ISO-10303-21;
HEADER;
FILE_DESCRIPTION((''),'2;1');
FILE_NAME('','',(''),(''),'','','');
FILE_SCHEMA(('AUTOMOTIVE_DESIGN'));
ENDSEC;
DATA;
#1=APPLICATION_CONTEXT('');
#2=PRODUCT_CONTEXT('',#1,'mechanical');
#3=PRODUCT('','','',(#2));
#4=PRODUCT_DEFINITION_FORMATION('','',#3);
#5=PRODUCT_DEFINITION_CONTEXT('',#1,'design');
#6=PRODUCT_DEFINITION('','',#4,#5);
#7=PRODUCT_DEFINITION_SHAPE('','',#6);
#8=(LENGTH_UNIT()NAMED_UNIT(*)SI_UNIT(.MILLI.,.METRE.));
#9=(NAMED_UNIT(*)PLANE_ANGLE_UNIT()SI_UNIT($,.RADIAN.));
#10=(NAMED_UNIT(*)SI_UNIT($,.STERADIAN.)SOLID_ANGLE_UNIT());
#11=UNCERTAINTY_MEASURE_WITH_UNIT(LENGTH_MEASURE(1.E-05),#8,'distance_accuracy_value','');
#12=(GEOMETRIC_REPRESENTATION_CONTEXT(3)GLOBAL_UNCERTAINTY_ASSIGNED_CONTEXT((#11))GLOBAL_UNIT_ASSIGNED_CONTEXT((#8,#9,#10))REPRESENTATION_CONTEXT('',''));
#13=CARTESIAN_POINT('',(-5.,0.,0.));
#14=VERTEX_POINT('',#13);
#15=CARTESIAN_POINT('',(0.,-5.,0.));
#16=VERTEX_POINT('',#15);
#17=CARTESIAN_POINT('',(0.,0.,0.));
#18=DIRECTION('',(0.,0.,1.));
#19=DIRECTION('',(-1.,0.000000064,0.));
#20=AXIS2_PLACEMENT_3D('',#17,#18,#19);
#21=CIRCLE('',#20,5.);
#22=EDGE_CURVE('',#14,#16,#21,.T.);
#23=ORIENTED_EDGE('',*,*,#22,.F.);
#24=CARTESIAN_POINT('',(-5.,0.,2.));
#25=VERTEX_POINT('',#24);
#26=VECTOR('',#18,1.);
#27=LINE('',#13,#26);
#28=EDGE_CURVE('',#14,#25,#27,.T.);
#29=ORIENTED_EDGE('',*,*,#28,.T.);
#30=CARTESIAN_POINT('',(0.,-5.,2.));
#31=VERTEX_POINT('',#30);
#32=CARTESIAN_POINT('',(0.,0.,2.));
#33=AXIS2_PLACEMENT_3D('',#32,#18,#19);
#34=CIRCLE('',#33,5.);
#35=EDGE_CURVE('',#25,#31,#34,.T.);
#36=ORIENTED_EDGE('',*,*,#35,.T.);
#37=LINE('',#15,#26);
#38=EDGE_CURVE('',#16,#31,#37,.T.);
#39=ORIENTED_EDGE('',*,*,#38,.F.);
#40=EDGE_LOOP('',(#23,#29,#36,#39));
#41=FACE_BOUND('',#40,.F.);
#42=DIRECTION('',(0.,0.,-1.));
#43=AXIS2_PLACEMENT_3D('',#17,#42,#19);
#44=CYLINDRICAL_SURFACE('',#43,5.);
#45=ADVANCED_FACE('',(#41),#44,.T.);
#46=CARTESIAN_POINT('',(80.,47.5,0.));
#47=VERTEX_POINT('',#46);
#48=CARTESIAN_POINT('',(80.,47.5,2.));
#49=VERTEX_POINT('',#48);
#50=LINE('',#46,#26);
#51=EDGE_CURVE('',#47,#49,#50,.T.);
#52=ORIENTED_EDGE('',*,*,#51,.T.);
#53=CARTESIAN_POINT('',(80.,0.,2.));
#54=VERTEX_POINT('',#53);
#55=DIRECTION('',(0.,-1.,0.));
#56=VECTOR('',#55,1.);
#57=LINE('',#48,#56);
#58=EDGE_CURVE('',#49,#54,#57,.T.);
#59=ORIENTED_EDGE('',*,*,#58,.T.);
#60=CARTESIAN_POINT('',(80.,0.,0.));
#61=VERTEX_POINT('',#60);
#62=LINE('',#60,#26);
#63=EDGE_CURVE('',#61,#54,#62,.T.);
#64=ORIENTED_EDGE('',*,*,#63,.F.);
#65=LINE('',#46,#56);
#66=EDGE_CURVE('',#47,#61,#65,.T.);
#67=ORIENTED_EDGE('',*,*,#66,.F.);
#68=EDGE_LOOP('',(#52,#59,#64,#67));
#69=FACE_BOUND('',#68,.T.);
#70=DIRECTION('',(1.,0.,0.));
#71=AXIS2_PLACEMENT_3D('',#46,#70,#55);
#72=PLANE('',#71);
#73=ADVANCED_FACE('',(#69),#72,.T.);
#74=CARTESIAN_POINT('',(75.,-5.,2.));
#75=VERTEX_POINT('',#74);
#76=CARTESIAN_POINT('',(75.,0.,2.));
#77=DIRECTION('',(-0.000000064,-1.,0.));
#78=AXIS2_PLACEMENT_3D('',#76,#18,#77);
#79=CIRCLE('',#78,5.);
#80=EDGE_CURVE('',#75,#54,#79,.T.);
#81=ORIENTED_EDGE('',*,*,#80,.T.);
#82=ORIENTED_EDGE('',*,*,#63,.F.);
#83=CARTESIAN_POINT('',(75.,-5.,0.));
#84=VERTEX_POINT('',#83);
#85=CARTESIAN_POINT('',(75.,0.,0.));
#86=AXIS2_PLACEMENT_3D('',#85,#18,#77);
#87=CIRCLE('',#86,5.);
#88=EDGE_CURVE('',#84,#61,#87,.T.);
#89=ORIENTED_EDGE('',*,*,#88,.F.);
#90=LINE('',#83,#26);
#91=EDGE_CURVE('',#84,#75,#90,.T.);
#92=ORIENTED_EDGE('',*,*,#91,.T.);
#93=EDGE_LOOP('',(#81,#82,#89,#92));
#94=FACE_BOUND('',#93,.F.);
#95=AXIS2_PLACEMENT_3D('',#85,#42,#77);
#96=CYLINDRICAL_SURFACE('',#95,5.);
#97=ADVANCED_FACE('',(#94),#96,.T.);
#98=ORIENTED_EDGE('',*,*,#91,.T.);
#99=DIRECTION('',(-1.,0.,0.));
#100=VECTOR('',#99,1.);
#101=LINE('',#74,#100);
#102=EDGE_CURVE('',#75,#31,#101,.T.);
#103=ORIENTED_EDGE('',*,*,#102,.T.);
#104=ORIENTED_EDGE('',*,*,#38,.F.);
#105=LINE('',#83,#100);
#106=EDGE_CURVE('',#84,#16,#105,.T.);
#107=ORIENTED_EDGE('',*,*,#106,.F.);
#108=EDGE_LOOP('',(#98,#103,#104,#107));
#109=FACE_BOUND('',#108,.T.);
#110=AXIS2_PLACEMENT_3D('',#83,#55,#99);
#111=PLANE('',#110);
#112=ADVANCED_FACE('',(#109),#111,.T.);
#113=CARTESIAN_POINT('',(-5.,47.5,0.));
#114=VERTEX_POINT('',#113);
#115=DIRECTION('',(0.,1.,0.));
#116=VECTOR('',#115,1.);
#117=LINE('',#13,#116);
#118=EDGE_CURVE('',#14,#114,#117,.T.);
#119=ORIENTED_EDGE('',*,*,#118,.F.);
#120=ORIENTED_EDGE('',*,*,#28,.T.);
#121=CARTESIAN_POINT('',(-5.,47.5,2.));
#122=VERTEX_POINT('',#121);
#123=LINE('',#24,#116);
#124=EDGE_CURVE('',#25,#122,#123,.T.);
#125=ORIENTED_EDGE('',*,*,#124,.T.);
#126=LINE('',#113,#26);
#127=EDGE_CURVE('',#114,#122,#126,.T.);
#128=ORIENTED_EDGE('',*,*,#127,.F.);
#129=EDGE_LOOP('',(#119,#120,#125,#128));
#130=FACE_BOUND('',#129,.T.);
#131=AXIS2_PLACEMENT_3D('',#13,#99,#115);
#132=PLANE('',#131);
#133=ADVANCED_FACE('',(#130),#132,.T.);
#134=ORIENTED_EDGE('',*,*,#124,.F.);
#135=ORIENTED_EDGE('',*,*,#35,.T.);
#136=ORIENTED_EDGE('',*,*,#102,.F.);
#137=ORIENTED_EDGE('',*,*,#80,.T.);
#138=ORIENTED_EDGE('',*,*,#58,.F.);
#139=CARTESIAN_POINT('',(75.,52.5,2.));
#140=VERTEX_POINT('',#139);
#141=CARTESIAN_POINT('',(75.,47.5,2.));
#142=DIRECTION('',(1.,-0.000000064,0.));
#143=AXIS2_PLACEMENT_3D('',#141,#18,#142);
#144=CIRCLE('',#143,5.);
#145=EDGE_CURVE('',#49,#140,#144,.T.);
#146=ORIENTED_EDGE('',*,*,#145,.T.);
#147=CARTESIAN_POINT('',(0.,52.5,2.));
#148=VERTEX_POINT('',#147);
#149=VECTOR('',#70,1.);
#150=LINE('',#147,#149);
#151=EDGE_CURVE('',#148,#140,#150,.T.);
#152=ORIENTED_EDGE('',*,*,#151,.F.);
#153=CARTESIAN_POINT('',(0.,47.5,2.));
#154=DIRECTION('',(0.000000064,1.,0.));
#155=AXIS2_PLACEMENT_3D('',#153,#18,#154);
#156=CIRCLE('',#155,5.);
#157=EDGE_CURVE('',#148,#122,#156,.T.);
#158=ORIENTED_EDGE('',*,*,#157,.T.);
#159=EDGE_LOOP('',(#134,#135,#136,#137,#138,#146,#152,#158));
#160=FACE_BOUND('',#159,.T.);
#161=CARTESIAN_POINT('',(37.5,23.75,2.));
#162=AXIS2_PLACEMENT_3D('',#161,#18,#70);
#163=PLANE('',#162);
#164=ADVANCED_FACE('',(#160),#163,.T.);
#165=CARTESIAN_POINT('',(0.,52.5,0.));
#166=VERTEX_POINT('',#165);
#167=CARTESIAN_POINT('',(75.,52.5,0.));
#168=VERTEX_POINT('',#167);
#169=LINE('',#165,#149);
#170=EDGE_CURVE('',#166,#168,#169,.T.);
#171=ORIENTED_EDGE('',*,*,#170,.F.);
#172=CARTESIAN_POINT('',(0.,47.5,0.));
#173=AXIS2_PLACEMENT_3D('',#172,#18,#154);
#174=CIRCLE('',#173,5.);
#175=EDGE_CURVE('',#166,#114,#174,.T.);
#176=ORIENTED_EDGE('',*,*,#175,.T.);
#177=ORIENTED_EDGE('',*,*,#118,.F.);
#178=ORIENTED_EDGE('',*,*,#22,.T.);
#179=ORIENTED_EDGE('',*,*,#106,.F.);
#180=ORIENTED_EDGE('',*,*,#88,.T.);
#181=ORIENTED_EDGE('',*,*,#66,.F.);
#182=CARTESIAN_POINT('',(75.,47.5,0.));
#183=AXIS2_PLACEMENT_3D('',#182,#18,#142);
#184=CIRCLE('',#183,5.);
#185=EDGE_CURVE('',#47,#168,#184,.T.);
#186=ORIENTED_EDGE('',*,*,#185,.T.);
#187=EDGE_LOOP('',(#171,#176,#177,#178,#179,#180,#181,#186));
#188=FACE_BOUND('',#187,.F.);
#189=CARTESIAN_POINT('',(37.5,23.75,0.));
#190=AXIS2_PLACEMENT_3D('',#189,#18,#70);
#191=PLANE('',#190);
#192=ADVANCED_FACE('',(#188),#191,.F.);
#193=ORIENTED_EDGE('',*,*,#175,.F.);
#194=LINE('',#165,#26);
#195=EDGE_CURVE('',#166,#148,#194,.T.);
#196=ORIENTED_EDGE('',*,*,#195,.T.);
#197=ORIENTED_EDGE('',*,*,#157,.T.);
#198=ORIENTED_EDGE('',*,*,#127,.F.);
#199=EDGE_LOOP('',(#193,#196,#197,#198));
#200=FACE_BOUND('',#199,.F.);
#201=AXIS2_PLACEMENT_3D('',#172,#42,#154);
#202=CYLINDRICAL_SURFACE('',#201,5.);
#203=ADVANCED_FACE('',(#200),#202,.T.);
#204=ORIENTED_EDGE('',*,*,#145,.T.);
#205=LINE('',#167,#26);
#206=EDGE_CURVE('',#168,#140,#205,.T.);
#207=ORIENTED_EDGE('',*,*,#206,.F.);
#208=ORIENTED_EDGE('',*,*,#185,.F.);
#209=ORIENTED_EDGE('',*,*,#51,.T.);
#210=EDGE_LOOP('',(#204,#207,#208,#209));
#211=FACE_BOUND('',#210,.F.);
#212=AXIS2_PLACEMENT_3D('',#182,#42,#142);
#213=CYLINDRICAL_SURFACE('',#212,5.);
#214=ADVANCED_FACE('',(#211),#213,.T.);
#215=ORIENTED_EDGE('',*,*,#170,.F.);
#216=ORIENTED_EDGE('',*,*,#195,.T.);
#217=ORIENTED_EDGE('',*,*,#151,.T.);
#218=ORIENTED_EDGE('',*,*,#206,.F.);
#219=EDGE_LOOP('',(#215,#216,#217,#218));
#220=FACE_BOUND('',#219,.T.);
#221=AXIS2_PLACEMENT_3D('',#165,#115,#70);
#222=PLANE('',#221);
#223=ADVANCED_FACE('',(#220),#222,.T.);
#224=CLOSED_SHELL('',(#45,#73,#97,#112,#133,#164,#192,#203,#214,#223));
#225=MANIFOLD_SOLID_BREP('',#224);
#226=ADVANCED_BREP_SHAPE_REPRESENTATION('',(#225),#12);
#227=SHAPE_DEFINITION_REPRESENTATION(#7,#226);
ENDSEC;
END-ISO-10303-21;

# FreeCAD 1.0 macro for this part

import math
import FreeCAD as App
import Part
import Sketcher

V = App.Vector

doc = App.newDocument("Part")
body = doc.addObject("PartDesign::Body", "Body")

# Sketch on XY plane
sketch1 = body.newObject("Sketcher::SketchObject", "Sketch")
sketch1.AttachmentSupport = (doc.getObject("XY_Plane"), [""])
sketch1.MapMode = "FlatFace"
sketch1.addGeometry([
    Part.ArcOfCircle(Part.Circle(V(0, 47.5, 0), V(0, 0, 1), 5), math.radians(89.999996), math.radians(180.000004)),  # 0
    Part.LineSegment(V(-5, 47.5, 0), V(-5, 0, 0)),  # 1
    Part.ArcOfCircle(Part.Circle(V(0, 0, 0), V(0, 0, 1), 5), math.radians(179.999996), math.radians(270.000004)),  # 2
    Part.LineSegment(V(0, -5, 0), V(75, -5, 0)),  # 3
    Part.ArcOfCircle(Part.Circle(V(75, 0, 0), V(0, 0, 1), 5), math.radians(-90.000004), math.radians(0.000004)),  # 4
    Part.LineSegment(V(80, 0, 0), V(80, 47.5, 0)),  # 5
    Part.ArcOfCircle(Part.Circle(V(75, 47.5, 0), V(0, 0, 1), 5), math.radians(-0.000004), math.radians(90.000004)),  # 6
    Part.LineSegment(V(75, 52.5, 0), V(0, 52.5, 0)),  # 7
], False)
sketch1.addConstraint([
    Sketcher.Constraint("Tangent", 0, 2, 1, 1),
    Sketcher.Constraint("Tangent", 1, 2, 2, 1),
    Sketcher.Constraint("Tangent", 2, 2, 3, 1),
    Sketcher.Constraint("Tangent", 3, 2, 4, 1),
    Sketcher.Constraint("Tangent", 4, 2, 5, 1),
    Sketcher.Constraint("Tangent", 5, 2, 6, 1),
    Sketcher.Constraint("Tangent", 6, 2, 7, 1),
    Sketcher.Constraint("Tangent", 7, 2, 0, 1),
    Sketcher.Constraint("Vertical", 1),
    Sketcher.Constraint("Horizontal", 3),
    Sketcher.Constraint("Vertical", 5),
    Sketcher.Constraint("Horizontal", 7),
    Sketcher.Constraint("Coincident", 2, 3, -1, 1),
    Sketcher.Constraint("Equal", 0, 2),
    Sketcher.Constraint("Equal", 2, 4),
    Sketcher.Constraint("Equal", 4, 6),
    Sketcher.Constraint("Radius", 0, 5.0),
    Sketcher.Constraint("DistanceX", 3, 1, 3, 2, 75.0),
    Sketcher.Constraint("DistanceY", 1, 2, 1, 1, 47.5),
])
pad1 = body.newObject("PartDesign::Pad", "Pad")
pad1.Profile = sketch1
pad1.Length = 2

doc.recompute()
